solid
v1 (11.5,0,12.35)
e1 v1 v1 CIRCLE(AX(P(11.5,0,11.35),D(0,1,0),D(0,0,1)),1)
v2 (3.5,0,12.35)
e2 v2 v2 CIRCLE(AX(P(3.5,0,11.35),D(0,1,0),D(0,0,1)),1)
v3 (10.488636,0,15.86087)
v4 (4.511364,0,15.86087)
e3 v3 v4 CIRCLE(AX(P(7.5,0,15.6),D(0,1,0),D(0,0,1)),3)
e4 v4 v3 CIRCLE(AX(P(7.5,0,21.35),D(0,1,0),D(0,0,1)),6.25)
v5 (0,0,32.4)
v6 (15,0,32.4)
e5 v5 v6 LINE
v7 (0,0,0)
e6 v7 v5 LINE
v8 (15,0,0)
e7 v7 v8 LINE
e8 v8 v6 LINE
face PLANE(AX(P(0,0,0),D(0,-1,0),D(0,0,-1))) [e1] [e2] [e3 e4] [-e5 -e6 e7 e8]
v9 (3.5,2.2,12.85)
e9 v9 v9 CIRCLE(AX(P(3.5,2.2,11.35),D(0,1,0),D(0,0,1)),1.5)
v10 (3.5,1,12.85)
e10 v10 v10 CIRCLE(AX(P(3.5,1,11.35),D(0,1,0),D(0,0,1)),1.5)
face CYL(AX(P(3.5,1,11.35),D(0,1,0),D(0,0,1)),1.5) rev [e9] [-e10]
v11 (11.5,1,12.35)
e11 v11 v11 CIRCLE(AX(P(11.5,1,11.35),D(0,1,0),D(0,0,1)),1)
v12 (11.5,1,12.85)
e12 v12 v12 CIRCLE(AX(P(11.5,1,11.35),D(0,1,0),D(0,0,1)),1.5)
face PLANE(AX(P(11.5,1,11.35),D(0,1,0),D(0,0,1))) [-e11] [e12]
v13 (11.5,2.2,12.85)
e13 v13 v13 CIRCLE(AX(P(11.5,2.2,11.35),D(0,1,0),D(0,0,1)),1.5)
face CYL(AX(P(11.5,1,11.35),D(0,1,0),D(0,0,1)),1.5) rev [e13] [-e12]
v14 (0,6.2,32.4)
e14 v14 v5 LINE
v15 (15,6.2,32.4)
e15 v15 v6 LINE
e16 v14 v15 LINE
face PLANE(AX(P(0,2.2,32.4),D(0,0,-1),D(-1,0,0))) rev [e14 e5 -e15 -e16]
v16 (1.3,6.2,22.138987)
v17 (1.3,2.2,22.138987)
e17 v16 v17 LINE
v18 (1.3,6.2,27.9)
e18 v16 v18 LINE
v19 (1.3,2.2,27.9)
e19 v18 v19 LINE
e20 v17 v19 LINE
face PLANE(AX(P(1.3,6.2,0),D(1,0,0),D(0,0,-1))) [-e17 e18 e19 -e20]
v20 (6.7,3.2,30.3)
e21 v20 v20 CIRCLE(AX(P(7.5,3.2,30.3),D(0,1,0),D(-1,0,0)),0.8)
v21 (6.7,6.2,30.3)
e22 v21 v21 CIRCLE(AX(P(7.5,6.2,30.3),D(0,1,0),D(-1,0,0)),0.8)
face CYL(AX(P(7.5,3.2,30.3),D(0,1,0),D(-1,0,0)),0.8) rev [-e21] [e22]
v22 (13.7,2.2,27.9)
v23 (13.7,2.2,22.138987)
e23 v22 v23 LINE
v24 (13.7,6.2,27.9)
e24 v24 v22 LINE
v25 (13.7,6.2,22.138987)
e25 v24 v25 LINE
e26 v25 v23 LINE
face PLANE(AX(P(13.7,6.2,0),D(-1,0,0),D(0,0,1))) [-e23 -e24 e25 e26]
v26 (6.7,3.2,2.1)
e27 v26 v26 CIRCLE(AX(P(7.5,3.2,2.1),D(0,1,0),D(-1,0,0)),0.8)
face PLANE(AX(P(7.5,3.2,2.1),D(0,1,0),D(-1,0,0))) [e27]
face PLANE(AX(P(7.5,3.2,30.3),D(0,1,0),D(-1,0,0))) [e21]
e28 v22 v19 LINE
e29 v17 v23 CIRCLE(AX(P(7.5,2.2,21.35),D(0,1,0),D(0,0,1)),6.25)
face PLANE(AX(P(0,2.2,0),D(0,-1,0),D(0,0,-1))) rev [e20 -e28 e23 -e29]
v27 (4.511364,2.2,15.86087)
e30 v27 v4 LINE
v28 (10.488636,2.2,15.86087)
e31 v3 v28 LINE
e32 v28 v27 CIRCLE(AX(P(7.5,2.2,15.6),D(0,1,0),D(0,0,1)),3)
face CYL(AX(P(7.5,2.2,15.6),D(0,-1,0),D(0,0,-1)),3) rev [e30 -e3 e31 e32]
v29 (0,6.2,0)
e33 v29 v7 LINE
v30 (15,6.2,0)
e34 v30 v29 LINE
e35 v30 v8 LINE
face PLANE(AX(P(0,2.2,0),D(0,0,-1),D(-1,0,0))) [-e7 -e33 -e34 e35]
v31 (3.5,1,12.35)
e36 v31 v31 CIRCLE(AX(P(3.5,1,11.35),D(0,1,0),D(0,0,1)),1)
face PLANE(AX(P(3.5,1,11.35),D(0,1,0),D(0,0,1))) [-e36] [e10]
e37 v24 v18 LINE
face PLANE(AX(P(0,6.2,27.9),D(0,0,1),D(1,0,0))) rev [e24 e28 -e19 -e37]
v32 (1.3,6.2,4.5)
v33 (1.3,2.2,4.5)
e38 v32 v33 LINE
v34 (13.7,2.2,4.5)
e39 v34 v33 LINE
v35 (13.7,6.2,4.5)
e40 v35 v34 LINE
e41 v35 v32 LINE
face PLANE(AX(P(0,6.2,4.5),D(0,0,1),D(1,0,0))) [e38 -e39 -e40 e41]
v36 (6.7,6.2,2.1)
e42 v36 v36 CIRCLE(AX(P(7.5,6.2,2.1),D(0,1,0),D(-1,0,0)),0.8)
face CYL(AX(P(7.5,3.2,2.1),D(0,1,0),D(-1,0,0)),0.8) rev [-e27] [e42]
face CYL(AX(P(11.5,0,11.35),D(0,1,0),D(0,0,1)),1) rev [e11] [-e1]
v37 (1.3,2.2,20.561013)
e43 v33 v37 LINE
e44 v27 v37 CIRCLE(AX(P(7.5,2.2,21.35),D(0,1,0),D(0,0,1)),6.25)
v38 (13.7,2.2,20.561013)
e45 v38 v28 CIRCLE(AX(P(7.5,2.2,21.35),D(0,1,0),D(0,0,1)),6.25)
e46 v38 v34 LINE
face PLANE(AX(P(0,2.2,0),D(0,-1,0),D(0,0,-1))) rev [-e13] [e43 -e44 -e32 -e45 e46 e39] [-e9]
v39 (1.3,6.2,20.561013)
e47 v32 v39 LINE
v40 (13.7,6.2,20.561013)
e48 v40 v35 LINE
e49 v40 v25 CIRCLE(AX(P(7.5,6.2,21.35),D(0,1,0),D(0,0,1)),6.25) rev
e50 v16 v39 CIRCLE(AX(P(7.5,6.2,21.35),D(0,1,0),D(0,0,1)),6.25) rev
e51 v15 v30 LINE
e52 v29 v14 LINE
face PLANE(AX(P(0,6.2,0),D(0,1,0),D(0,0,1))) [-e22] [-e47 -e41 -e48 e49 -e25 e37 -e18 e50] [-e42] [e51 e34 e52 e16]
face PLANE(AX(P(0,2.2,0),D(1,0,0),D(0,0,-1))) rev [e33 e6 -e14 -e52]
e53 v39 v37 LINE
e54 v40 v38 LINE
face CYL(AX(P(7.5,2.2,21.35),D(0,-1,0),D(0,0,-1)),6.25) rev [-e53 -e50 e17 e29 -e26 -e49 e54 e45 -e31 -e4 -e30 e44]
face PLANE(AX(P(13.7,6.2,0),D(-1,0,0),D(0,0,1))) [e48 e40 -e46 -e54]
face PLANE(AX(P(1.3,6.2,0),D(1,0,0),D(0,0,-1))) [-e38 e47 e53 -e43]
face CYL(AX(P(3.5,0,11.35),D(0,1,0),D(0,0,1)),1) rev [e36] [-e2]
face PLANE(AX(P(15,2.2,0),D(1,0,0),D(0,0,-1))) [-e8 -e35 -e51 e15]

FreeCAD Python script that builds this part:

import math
import FreeCAD as App
import Part
import Sketcher
from FreeCAD import Vector


def add_polygon(sketch, points):
    """Adds a closed chain of lines whose ends are joined by coincident constraints."""
    first, n = sketch.GeometryCount, len(points)
    for a, b in zip(points, points[1:] + points[:1]):
        sketch.addGeometry(Part.LineSegment(App.Vector(*a, 0), App.Vector(*b, 0)), False)
    for i in range(n):
        sketch.addConstraint(Sketcher.Constraint("Coincident", first + i, 2, first + (i + 1) % n, 1))

doc = App.newDocument("Part")
body = doc.addObject("PartDesign::Body", "Body")

sketch1 = body.newObject("Sketcher::SketchObject", "Sketch")
sketch1.AttachmentSupport = (doc.getObject("XZ_Plane"), [""])
sketch1.MapMode = "FlatFace"
add_polygon(sketch1, [(0, 0), (0, 32), (15, 32), (15, 0)])
sketch1.addConstraint([
    Sketcher.Constraint("Vertical", 0),
    Sketcher.Constraint("Horizontal", 1),
    Sketcher.Constraint("Vertical", 2),
    Sketcher.Constraint("Horizontal", 3),
    Sketcher.Constraint("Coincident", 3, 2, -1, 1),
    Sketcher.Constraint("DistanceX", 1, 1, 1, 2, 15.0),
    Sketcher.Constraint("DistanceY", 0, 1, 0, 2, 32.4),
])
pad1 = body.newObject("PartDesign::Pad", "Pad")
pad1.Profile = sketch1
pad1.Length = 2.2
pad1.Reversed = True

sketch2 = body.newObject("Sketcher::SketchObject", "Sketch001")
sketch2.AttachmentSupport = (doc.getObject("XZ_Plane"), [""])
sketch2.MapMode = "FlatFace"
sketch2.addGeometry([
    Part.ArcOfCircle(Part.Circle(Vector(7.5, 21.4, 0), Vector(0, 0, 1), 6.2), math.radians(-61), math.radians(241)),
    Part.ArcOfCircle(Part.Circle(Vector(7.5, 15.6, 0), Vector(0, 0, 1), 3), math.radians(175), math.radians(365)),
], False)
sketch2.addConstraint([
    Sketcher.Constraint("Coincident", 0, 1, 1, 2),
    Sketcher.Constraint("Coincident", 1, 1, 0, 2),
    Sketcher.Constraint("Horizontal", 0, 1, 1, 1),
    Sketcher.Constraint("Radius", 1, 3.0),
    Sketcher.Constraint("Radius", 0, 6.25),
    Sketcher.Constraint("DistanceX", -1, 1, 0, 3, 7.5),
    Sketcher.Constraint("DistanceY", -1, 1, 1, 3, 15.6),
    Sketcher.Constraint("DistanceY", -1, 1, 0, 3, 21.35),
])
pocket1 = body.newObject("PartDesign::Pocket", "Pocket")
pocket1.Profile = sketch2
pocket1.Type = "ThroughAll"

sketch3 = body.newObject("Sketcher::SketchObject", "Sketch002")
sketch3.AttachmentSupport = (doc.getObject("XZ_Plane"), [""])
sketch3.MapMode = "FlatFace"
sketch3.AttachmentOffset = App.Placement(Vector(0, 0, -2.2), App.Rotation())
add_polygon(sketch3, [(0, 0), (0, 32.4), (15, 32.4), (15, 0)])
sketch3.addGeometry(Part.LineSegment(Vector(1.3, 20.6, 0), Vector(1.3, 4.5, 0)), False)
sketch3.addGeometry(Part.LineSegment(Vector(1.3, 4.5, 0), Vector(13.7, 4.5, 0)), False)
sketch3.addGeometry(Part.LineSegment(Vector(13.7, 4.5, 0), Vector(13.7, 20.6, 0)), False)
sketch3.addGeometry(Part.ArcOfCircle(Part.Circle(Vector(7.5, 21.4, 0), Vector(0, 0, 1), 6.3), math.radians(-7.25), math.radians(7.25)), False)
sketch3.addGeometry(Part.LineSegment(Vector(13.7, 22.1, 0), Vector(13.7, 27.9, 0)), False)
sketch3.addGeometry(Part.LineSegment(Vector(13.7, 27.9, 0), Vector(1.3, 27.9, 0)), False)
sketch3.addGeometry(Part.LineSegment(Vector(1.3, 27.9, 0), Vector(1.3, 22.1, 0)), False)
sketch3.addGeometry(Part.ArcOfCircle(Part.Circle(Vector(7.5, 21.4, 0), Vector(0, 0, 1), 6.3), math.radians(172.75), math.radians(187.25)), False)
sketch3.addConstraint([
    Sketcher.Constraint("Coincident", 4, 2, 5, 1),
    Sketcher.Constraint("Coincident", 5, 2, 6, 1),
    Sketcher.Constraint("Coincident", 6, 2, 7, 1),
    Sketcher.Constraint("Coincident", 7, 2, 8, 1),
    Sketcher.Constraint("Coincident", 8, 2, 9, 1),
    Sketcher.Constraint("Coincident", 9, 2, 10, 1),
    Sketcher.Constraint("Coincident", 10, 2, 11, 1),
    Sketcher.Constraint("Coincident", 11, 2, 4, 1),
    Sketcher.Constraint("Vertical", 0),
    Sketcher.Constraint("Horizontal", 1),
    Sketcher.Constraint("Vertical", 2),
    Sketcher.Constraint("Horizontal", 3),
    Sketcher.Constraint("Vertical", 4),
    Sketcher.Constraint("Horizontal", 5),
    Sketcher.Constraint("Vertical", 6),
    Sketcher.Constraint("Vertical", 8),
    Sketcher.Constraint("Horizontal", 9),
    Sketcher.Constraint("Vertical", 10),
    Sketcher.Constraint("Coincident", 3, 2, -1, 1),
    Sketcher.Constraint("Coincident", 11, 3, 7, 3),
    Sketcher.Constraint("Equal", 7, 11),
    Sketcher.Constraint("Horizontal", 7, 2, 10, 2),
    Sketcher.Constraint("Horizontal", 6, 2, 11, 2),
    Sketcher.Constraint("Vertical", 6, 2, 7, 2),
    Sketcher.Constraint("DistanceX", 1, 1, 1, 2, 15.0),
    Sketcher.Constraint("Radius", 7, 6.25),
    Sketcher.Constraint("DistanceX", 5, 1, 5, 2, 12.4),
    Sketcher.Constraint("DistanceY", 0, 1, 0, 2, 32.4),
    Sketcher.Constraint("DistanceX", -1, 1, 7, 3, 7.5),
    Sketcher.Constraint("DistanceY", -1, 1, 4, 2, 4.5),
    Sketcher.Constraint("DistanceY", -1, 1, 8, 2, 27.9),
    Sketcher.Constraint("DistanceY", -1, 1, 7, 3, 21.35),
])
pad2 = body.newObject("PartDesign::Pad", "Pad001")
pad2.Profile = sketch3
pad2.Length = 4
pad2.Reversed = True

sketch4 = body.newObject("Sketcher::SketchObject", "Sketch003")
sketch4.AttachmentSupport = (doc.getObject("XZ_Plane"), [""])
sketch4.MapMode = "FlatFace"
sketch4.AttachmentOffset = App.Placement(Vector(0, 0, -6.2), App.Rotation())
sketch4.addGeometry([
    Part.Circle(Vector(7.5, 30.3, 0), Vector(0, 0, 1), 0.8),
    Part.Circle(Vector(7.5, 2.1, 0), Vector(0, 0, 1), 0.8),
], False)
sketch4.addConstraint([
    Sketcher.Constraint("Equal", 0, 1),
    Sketcher.Constraint("Vertical", 0, 3, 1, 3),
    Sketcher.Constraint("Diameter", 0, 1.6),
    Sketcher.Constraint("DistanceX", -1, 1, 0, 3, 7.5),
    Sketcher.Constraint("DistanceY", -1, 1, 0, 3, 30.3),
    Sketcher.Constraint("DistanceY", -1, 1, 1, 3, 2.1),
])
pocket2 = body.newObject("PartDesign::Pocket", "Pocket001")
pocket2.Profile = sketch4
pocket2.Length = 3
pocket2.Reversed = True

sketch5 = body.newObject("Sketcher::SketchObject", "Sketch004")
sketch5.AttachmentSupport = (doc.getObject("XZ_Plane"), [""])
sketch5.MapMode = "FlatFace"
sketch5.AttachmentOffset = App.Placement(Vector(0, 0, -2.2), App.Rotation())
sketch5.addGeometry([
    Part.Circle(Vector(11.5, 11.3, 0), Vector(0, 0, 1), 1),
    Part.Circle(Vector(3.5, 11.3, 0), Vector(0, 0, 1), 1),
], False)
sketch5.addConstraint([
    Sketcher.Constraint("Equal", 0, 1),
    Sketcher.Constraint("Horizontal", 0, 3, 1, 3),
    Sketcher.Constraint("Diameter", 0, 2.0),
    Sketcher.Constraint("DistanceX", 1, 3, 0, 3, 8.0),
    Sketcher.Constraint("DistanceX", -1, 1, 0, 3, 11.5),
    Sketcher.Constraint("DistanceY", -1, 1, 0, 3, 11.35),
])
pocket3 = body.newObject("PartDesign::Pocket", "Pocket002")
pocket3.Profile = sketch5
pocket3.Type = "ThroughAll"
pocket3.Reversed = True

sketch6 = body.newObject("Sketcher::SketchObject", "Sketch005")
sketch6.AttachmentSupport = (doc.getObject("XZ_Plane"), [""])
sketch6.MapMode = "FlatFace"
sketch6.AttachmentOffset = App.Placement(Vector(0, 0, -2.2), App.Rotation())
sketch6.addGeometry([
    Part.Circle(Vector(11.5, 11.3, 0), Vector(0, 0, 1), 1.5),
    Part.Circle(Vector(11.5, 11.3, 0), Vector(0, 0, 1), 1),
    Part.Circle(Vector(3.5, 11.3, 0), Vector(0, 0, 1), 1.5),
    Part.Circle(Vector(3.5, 11.3, 0), Vector(0, 0, 1), 1),
], False)
sketch6.addConstraint([
    Sketcher.Constraint("Coincident", 1, 3, 0, 3),
    Sketcher.Constraint("Coincident", 3, 3, 2, 3),
    Sketcher.Constraint("Equal", 0, 2),
    Sketcher.Constraint("Equal", 1, 3),
    Sketcher.Constraint("Horizontal", 1, 3, 2, 3),
    Sketcher.Constraint("Diameter", 0, 3.0),
    Sketcher.Constraint("Diameter", 1, 2.0),
    Sketcher.Constraint("DistanceX", 2, 3, 0, 3, 8.0),
    Sketcher.Constraint("DistanceX", -1, 1, 0, 3, 11.5),
    Sketcher.Constraint("DistanceY", -1, 1, 0, 3, 11.35),
])
pocket4 = body.newObject("PartDesign::Pocket", "Pocket003")
pocket4.Profile = sketch6
pocket4.Length = 1.2
pocket4.Reversed = True

doc.recompute()
